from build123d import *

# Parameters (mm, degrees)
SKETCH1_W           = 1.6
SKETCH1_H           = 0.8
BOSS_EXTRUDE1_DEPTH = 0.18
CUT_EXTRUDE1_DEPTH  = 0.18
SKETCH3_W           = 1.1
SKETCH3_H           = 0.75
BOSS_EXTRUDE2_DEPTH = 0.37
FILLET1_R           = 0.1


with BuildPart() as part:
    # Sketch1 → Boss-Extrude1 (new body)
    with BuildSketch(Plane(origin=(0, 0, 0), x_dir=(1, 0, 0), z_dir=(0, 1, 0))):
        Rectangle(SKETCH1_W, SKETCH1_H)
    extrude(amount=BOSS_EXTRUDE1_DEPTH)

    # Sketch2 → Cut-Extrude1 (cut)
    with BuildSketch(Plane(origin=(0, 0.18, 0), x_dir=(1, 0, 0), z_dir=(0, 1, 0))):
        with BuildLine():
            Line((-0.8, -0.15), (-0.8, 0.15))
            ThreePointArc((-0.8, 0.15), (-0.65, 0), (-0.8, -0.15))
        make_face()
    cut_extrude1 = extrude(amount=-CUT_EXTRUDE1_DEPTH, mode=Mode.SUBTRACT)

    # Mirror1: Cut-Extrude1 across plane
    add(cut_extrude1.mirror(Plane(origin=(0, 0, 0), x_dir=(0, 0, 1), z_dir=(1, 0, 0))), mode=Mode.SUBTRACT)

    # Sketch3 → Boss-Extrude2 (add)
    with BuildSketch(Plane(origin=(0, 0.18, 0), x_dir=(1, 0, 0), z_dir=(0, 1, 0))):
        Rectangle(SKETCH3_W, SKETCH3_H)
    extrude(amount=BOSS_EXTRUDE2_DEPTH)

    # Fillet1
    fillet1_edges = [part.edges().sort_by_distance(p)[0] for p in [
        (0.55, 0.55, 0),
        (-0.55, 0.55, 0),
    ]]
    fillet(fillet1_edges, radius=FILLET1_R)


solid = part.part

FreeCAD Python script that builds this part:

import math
import FreeCAD as App
import Part
import Sketcher

V = App.Vector
Q = App.Units.Quantity


def edges_at(feature, points):
    """Names of the edges that pass closest to the given points."""
    edges = feature.Shape.Edges
    near = lambda p: min(range(len(edges)), key=lambda i: edges[i].distToShape(Part.Vertex(*p))[0])
    return sorted({f"Edge{near(p) + 1}" for p in points})

doc = App.newDocument("Part")
body = doc.addObject("PartDesign::Body", "Body")

# Sketch on XZ plane
sketch1 = body.newObject("Sketcher::SketchObject", "Sketch")
sketch1.AttachmentSupport = (doc.getObject("XZ_Plane"), [""])
sketch1.MapMode = "FlatFace"
sketch1.addGeometry(Part.LineSegment(V(-0.8, -0.4, 0), V(-0.8, 0.4, 0)), False)
sketch1.addGeometry(Part.LineSegment(V(-0.8, 0.4, 0), V(0.8, 0.4, 0)), False)
sketch1.addGeometry(Part.LineSegment(V(0.8, 0.4, 0), V(0.8, -0.4, 0)), False)
sketch1.addGeometry(Part.LineSegment(V(0.8, -0.4, 0), V(-0.8, -0.4, 0)), False)
sketch1.addConstraint(Sketcher.Constraint("Coincident", 0, 2, 1, 1))
sketch1.addConstraint(Sketcher.Constraint("Coincident", 1, 2, 2, 1))
sketch1.addConstraint(Sketcher.Constraint("Coincident", 2, 2, 3, 1))
sketch1.addConstraint(Sketcher.Constraint("Coincident", 3, 2, 0, 1))
sketch1.addConstraint(Sketcher.Constraint("Vertical", 0))
sketch1.addConstraint(Sketcher.Constraint("Horizontal", 1))
sketch1.addConstraint(Sketcher.Constraint("Vertical", 2))
sketch1.addConstraint(Sketcher.Constraint("Horizontal", 3))
sketch1.addConstraint(Sketcher.Constraint("Symmetric", 0, 2, 2, 2, -1, 1))
sketch1.addConstraint(Sketcher.Constraint("DistanceX", 1, 1, 1, 2, Q("1.6 mm")))
sketch1.addConstraint(Sketcher.Constraint("DistanceY", 0, 1, 0, 2, Q("0.8 mm")))
pad1 = body.newObject("PartDesign::Pad", "Pad")
pad1.Profile = sketch1
pad1.Length = 0.18
pad1.Reversed = True

# Sketch on XZ plane
sketch2 = body.newObject("Sketcher::SketchObject", "Sketch001")
sketch2.AttachmentSupport = (doc.getObject("XZ_Plane"), [""])
sketch2.MapMode = "FlatFace"
sketch2.AttachmentOffset = App.Placement(V(0, 0, -0.18), App.Rotation())
sketch2.addGeometry(Part.LineSegment(V(-0.8, -0.15, 0), V(-0.8, 0.15, 0)), False)
sketch2.addGeometry(Part.ArcOfCircle(Part.Circle(V(-0.8, 0, 0), V(0, 0, 1), 0.15), math.radians(-90), math.radians(90)), False)
sketch2.addConstraint(Sketcher.Constraint("Coincident", 0, 1, 1, 1))
sketch2.addConstraint(Sketcher.Constraint("Coincident", 1, 2, 0, 2))
sketch2.addConstraint(Sketcher.Constraint("Vertical", 0))
sketch2.addConstraint(Sketcher.Constraint("PointOnObject", 1, 3, -1))
sketch2.addConstraint(Sketcher.Constraint("Vertical", 1, 3, 0, 1))
sketch2.addConstraint(Sketcher.Constraint("Radius", 1, Q("0.15 mm")))
sketch2.addConstraint(Sketcher.Constraint("DistanceX", 1, 3, -1, 1, Q("0.8 mm")))
pocket1 = body.newObject("PartDesign::Pocket", "Pocket")
pocket1.Profile = sketch2
pocket1.Length = 0.18
pocket1.Reversed = True
doc.recompute()

mirrored = body.newObject("PartDesign::Mirrored", "Mirrored")
mirrored.Originals = [pocket1]
mirrored.MirrorPlane = (doc.getObject("YZ_Plane"), [""])
body.Tip = mirrored

# Sketch on XZ plane
sketch3 = body.newObject("Sketcher::SketchObject", "Sketch002")
sketch3.AttachmentSupport = (doc.getObject("XZ_Plane"), [""])
sketch3.MapMode = "FlatFace"
sketch3.AttachmentOffset = App.Placement(V(0, 0, -0.18), App.Rotation())
sketch3.addGeometry(Part.LineSegment(V(-0.6, -0.4, 0), V(-0.6, 0.4, 0)), False)
sketch3.addGeometry(Part.LineSegment(V(-0.6, 0.4, 0), V(0.6, 0.4, 0)), False)
sketch3.addGeometry(Part.LineSegment(V(0.6, 0.4, 0), V(0.6, -0.4, 0)), False)
sketch3.addGeometry(Part.LineSegment(V(0.6, -0.4, 0), V(-0.6, -0.4, 0)), False)
sketch3.addConstraint(Sketcher.Constraint("Coincident", 0, 2, 1, 1))
sketch3.addConstraint(Sketcher.Constraint("Coincident", 1, 2, 2, 1))
sketch3.addConstraint(Sketcher.Constraint("Coincident", 2, 2, 3, 1))
sketch3.addConstraint(Sketcher.Constraint("Coincident", 3, 2, 0, 1))
sketch3.addConstraint(Sketcher.Constraint("Vertical", 0))
sketch3.addConstraint(Sketcher.Constraint("Horizontal", 1))
sketch3.addConstraint(Sketcher.Constraint("Vertical", 2))
sketch3.addConstraint(Sketcher.Constraint("Horizontal", 3))
sketch3.addConstraint(Sketcher.Constraint("Symmetric", 0, 2, 2, 2, -1, 1))
sketch3.addConstraint(Sketcher.Constraint("DistanceX", 1, 1, 1, 2, Q("1.1 mm")))
sketch3.addConstraint(Sketcher.Constraint("DistanceY", 0, 1, 0, 2, Q("0.75 mm")))
pad2 = body.newObject("PartDesign::Pad", "Pad001")
pad2.Profile = sketch3
pad2.Length = 0.37
pad2.Reversed = True
doc.recompute()

fillet = body.newObject("PartDesign::Fillet", "Fillet")
fillet.Base = (pad2, edges_at(pad2, [(0.55, 0.55, 0), (-0.55, 0.55, 0)]))
fillet.Radius = 0.1

doc.recompute()
